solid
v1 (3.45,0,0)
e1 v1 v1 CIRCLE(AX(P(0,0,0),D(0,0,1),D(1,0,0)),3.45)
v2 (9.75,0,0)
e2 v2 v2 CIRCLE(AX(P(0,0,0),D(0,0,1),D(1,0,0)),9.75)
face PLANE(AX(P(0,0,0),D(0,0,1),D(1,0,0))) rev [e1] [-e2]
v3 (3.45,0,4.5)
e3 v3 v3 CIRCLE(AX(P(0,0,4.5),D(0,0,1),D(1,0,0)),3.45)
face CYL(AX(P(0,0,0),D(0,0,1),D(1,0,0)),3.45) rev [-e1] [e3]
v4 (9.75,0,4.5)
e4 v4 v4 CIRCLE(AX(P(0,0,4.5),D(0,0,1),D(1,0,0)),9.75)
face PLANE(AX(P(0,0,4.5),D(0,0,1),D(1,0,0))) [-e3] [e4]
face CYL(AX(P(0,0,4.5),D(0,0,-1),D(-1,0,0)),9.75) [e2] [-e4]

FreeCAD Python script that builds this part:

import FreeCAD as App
import Part
import Sketcher

V = App.Vector

doc = App.newDocument("Part")
params = doc.addObject("Spreadsheet::Sheet", "Params")
for row, (alias, value) in enumerate([
    ("sketch1_diameter", "19.5 mm"),
    ("pad1_length", "4.5 mm"),
    ("sketch2_diameter", "6.9 mm"),
    ("pocket1_length", "4.5 mm"),
], start=1):
    params.set(f"A{row}", alias)
    params.set(f"B{row}", "=" + value)
    params.setAlias(f"B{row}", alias)

body = doc.addObject("PartDesign::Body", "Body")

# Sketch on XY plane
sketch1 = body.newObject("Sketcher::SketchObject", "Sketch")
sketch1.AttachmentSupport = (doc.getObject("XY_Plane"), [""])
sketch1.MapMode = "FlatFace"
sketch1.addGeometry(Part.Circle(V(0, 0, 0), V(0, 0, 1), 9.75), False)
sketch1.addConstraint(Sketcher.Constraint("Coincident", 0, 3, -1, 1))
sketch1.addConstraint(Sketcher.Constraint("Diameter", 0, 19.5))
sketch1.setExpression("Constraints[1]", "Params.sketch1_diameter")
pad1 = body.newObject("PartDesign::Pad", "Pad")
pad1.Profile = sketch1
pad1.setExpression("Length", "Params.pad1_length")

# Sketch on XY plane
sketch2 = body.newObject("Sketcher::SketchObject", "Sketch001")
sketch2.AttachmentSupport = (doc.getObject("XY_Plane"), [""])
sketch2.MapMode = "FlatFace"
sketch2.AttachmentOffset = App.Placement(V(0, 0, 4.5), App.Rotation())
sketch2.addGeometry(Part.Circle(V(0, 0, 0), V(0, 0, 1), 3.45), False)
sketch2.addConstraint(Sketcher.Constraint("Coincident", 0, 3, -1, 1))
sketch2.addConstraint(Sketcher.Constraint("Diameter", 0, 6.9))
sketch2.setExpression("Constraints[1]", "Params.sketch2_diameter")
pocket1 = body.newObject("PartDesign::Pocket", "Pocket")
pocket1.Profile = sketch2
pocket1.setExpression("Length", "Params.pocket1_length")

doc.recompute()
